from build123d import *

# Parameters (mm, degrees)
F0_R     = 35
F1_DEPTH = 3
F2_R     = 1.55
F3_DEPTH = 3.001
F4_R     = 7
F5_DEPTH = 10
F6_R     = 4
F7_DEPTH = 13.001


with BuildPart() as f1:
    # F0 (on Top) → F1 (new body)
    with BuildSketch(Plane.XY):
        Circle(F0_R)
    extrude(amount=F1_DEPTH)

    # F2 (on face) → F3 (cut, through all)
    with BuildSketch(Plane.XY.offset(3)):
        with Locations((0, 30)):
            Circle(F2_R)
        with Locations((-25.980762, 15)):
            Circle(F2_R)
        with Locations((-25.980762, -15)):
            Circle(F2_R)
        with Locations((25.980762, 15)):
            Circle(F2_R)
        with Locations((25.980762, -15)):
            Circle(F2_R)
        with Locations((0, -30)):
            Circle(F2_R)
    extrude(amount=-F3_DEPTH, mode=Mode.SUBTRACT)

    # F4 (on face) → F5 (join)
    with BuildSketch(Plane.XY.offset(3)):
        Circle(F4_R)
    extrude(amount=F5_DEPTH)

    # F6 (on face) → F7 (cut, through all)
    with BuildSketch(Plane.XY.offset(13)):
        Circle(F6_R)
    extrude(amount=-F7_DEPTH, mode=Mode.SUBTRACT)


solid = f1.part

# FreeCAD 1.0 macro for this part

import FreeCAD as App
import Part
import Sketcher
Q = App.Units.Quantity

doc = App.newDocument("Part")
body = doc.addObject("PartDesign::Body", "Body")

# Sketch on XY plane
sketch1 = body.newObject("Sketcher::SketchObject", "Sketch")
sketch1.AttachmentSupport = (doc.getObject("XY_Plane"), [""])
sketch1.MapMode = "FlatFace"
sketch1.addGeometry(Part.Circle(App.Vector(0, 0, 0), App.Vector(0, 0, 1), 35), False)
sketch1.addConstraint(Sketcher.Constraint("Coincident", 0, 3, -1, 1))
sketch1.addConstraint(Sketcher.Constraint("Diameter", 0, Q("70 mm")))
pad1 = body.newObject("PartDesign::Pad", "Pad")
pad1.Profile = sketch1
pad1.Length = 3

# Sketch on XY plane
sketch2 = body.newObject("Sketcher::SketchObject", "Sketch001")
sketch2.AttachmentSupport = (doc.getObject("XY_Plane"), [""])
sketch2.MapMode = "FlatFace"
sketch2.AttachmentOffset = App.Placement(App.Vector(0, 0, 3), App.Rotation())
sketch2.addGeometry(Part.Circle(App.Vector(0, 30, 0), App.Vector(0, 0, 1), 1.6), False)
sketch2.addGeometry(Part.Circle(App.Vector(-26, 15, 0), App.Vector(0, 0, 1), 1.6), False)
sketch2.addGeometry(Part.Circle(App.Vector(-26, -15, 0), App.Vector(0, 0, 1), 1.6), False)
sketch2.addGeometry(Part.Circle(App.Vector(26, 15, 0), App.Vector(0, 0, 1), 1.6), False)
sketch2.addGeometry(Part.Circle(App.Vector(26, -15, 0), App.Vector(0, 0, 1), 1.6), False)
sketch2.addGeometry(Part.Circle(App.Vector(0, -30, 0), App.Vector(0, 0, 1), 1.6), False)
sketch2.addConstraint(Sketcher.Constraint("Equal", 0, 1))
sketch2.addConstraint(Sketcher.Constraint("Equal", 1, 2))
sketch2.addConstraint(Sketcher.Constraint("Equal", 2, 3))
sketch2.addConstraint(Sketcher.Constraint("Equal", 3, 4))
sketch2.addConstraint(Sketcher.Constraint("Equal", 4, 5))
sketch2.addConstraint(Sketcher.Constraint("Symmetric", 2, 3, 3, 3, -1, 1))
sketch2.addConstraint(Sketcher.Constraint("Symmetric", 1, 3, 4, 3, -1, 1))
sketch2.addConstraint(Sketcher.Constraint("Symmetric", 0, 3, 5, 3, -1, 1))
sketch2.addConstraint(Sketcher.Constraint("Symmetric", 1, 3, 3, 3, -2))
sketch2.addConstraint(Sketcher.Constraint("PointOnObject", 0, 3, -2))
sketch2.addConstraint(Sketcher.Constraint("Diameter", 0, Q("3.1 mm")))
sketch2.addConstraint(Sketcher.Constraint("DistanceY", -1, 1, 0, 3, Q("30 mm")))
sketch2.addConstraint(Sketcher.Constraint("DistanceY", -1, 1, 1, 3, Q("15 mm")))
sketch2.addConstraint(Sketcher.Constraint("DistanceX", 1, 3, -1, 1, Q("25.980762 mm")))
pocket1 = body.newObject("PartDesign::Pocket", "Pocket")
pocket1.Profile = sketch2
pocket1.Type = "ThroughAll"

# Sketch on XY plane
sketch3 = body.newObject("Sketcher::SketchObject", "Sketch002")
sketch3.AttachmentSupport = (doc.getObject("XY_Plane"), [""])
sketch3.MapMode = "FlatFace"
sketch3.AttachmentOffset = App.Placement(App.Vector(0, 0, 3), App.Rotation())
sketch3.addGeometry(Part.Circle(App.Vector(0, 0, 0), App.Vector(0, 0, 1), 7), False)
sketch3.addConstraint(Sketcher.Constraint("Coincident", 0, 3, -1, 1))
sketch3.addConstraint(Sketcher.Constraint("Diameter", 0, Q("14 mm")))
pad2 = body.newObject("PartDesign::Pad", "Pad001")
pad2.Profile = sketch3
pad2.Length = 10

# Sketch on XY plane
sketch4 = body.newObject("Sketcher::SketchObject", "Sketch003")
sketch4.AttachmentSupport = (doc.getObject("XY_Plane"), [""])
sketch4.MapMode = "FlatFace"
sketch4.AttachmentOffset = App.Placement(App.Vector(0, 0, 13), App.Rotation())
sketch4.addGeometry(Part.Circle(App.Vector(0, 0, 0), App.Vector(0, 0, 1), 4), False)
sketch4.addConstraint(Sketcher.Constraint("Coincident", 0, 3, -1, 1))
sketch4.addConstraint(Sketcher.Constraint("Diameter", 0, Q("8 mm")))
pocket2 = body.newObject("PartDesign::Pocket", "Pocket001")
pocket2.Profile = sketch4
pocket2.Type = "ThroughAll"

doc.recompute()
